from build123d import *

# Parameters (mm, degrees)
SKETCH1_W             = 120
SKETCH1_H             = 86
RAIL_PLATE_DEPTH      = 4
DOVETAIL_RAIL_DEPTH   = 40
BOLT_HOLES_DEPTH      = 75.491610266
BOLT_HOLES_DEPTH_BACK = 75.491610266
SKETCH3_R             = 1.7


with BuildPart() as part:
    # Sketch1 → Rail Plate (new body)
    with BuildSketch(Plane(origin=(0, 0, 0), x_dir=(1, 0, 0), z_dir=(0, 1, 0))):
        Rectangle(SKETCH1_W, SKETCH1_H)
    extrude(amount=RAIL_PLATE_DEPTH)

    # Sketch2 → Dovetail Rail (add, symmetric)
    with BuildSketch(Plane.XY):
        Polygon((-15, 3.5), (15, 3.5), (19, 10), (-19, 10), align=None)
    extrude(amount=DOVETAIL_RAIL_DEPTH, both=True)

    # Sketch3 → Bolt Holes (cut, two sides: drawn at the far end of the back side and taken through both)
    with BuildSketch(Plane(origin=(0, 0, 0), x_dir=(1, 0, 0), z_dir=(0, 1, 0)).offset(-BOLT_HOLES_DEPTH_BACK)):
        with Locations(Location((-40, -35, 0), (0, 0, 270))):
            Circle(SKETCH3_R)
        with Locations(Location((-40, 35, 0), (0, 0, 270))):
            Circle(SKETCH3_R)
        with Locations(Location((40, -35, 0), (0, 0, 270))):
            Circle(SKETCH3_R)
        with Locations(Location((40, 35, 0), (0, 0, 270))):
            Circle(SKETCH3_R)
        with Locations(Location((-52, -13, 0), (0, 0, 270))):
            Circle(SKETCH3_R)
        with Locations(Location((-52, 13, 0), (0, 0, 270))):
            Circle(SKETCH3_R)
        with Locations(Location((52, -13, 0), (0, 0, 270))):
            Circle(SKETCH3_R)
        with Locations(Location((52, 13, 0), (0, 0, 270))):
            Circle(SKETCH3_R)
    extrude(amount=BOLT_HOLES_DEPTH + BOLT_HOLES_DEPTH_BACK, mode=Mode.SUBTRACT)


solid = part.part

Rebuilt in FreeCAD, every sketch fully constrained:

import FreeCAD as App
import Part
import Sketcher


def add_polygon(sketch, points):
    """Adds a closed chain of lines whose ends are joined by coincident constraints."""
    first, n = sketch.GeometryCount, len(points)
    for a, b in zip(points, points[1:] + points[:1]):
        sketch.addGeometry(Part.LineSegment(App.Vector(*a, 0), App.Vector(*b, 0)), False)
    for i in range(n):
        sketch.addConstraint(Sketcher.Constraint("Coincident", first + i, 2, first + (i + 1) % n, 1))

doc = App.newDocument("Part")
body = doc.addObject("PartDesign::Body", "Body")

sketch1 = body.newObject("Sketcher::SketchObject", "Sketch")
sketch1.AttachmentSupport = (doc.getObject("XZ_Plane"), [""])
sketch1.MapMode = "FlatFace"
add_polygon(sketch1, [(-60, -43), (-60, 43), (60, 43), (60, -43)])
sketch1.addConstraint([
    Sketcher.Constraint("Vertical", 0),
    Sketcher.Constraint("Horizontal", 1),
    Sketcher.Constraint("Vertical", 2),
    Sketcher.Constraint("Horizontal", 3),
    Sketcher.Constraint("Symmetric", 0, 2, 2, 2, -1, 1),
    Sketcher.Constraint("DistanceX", 1, 1, 1, 2, 120.0),
    Sketcher.Constraint("DistanceY", 0, 1, 0, 2, 86.0),
])
pad1 = body.newObject("PartDesign::Pad", "Pad")
pad1.Profile = sketch1
pad1.Length = 4
pad1.Reversed = True

sketch2 = body.newObject("Sketcher::SketchObject", "Sketch001")
sketch2.AttachmentSupport = (doc.getObject("XY_Plane"), [""])
sketch2.MapMode = "FlatFace"
add_polygon(sketch2, [(-15, 4), (15, 4), (19, 10), (-19, 10)])
sketch2.addConstraint([
    Sketcher.Constraint("Horizontal", 0),
    Sketcher.Constraint("Horizontal", 2),
    Sketcher.Constraint("Equal", 1, 3),
    Sketcher.Constraint("DistanceX", 0, 1, 0, 2, 30.0),
    Sketcher.Constraint("DistanceX", 2, 2, 2, 1, 38.0),
    Sketcher.Constraint("DistanceX", -1, 1, 0, 2, 15.0),
    Sketcher.Constraint("DistanceY", -1, 1, 1, 2, 10.0),
    Sketcher.Constraint("DistanceY", -1, 1, 0, 2, 3.5),
])
pad2 = body.newObject("PartDesign::Pad", "Pad001")
pad2.Profile = sketch2
pad2.Length = 80
pad2.Midplane = True

sketch3 = body.newObject("Sketcher::SketchObject", "Sketch002")
sketch3.AttachmentSupport = (doc.getObject("XZ_Plane"), [""])
sketch3.MapMode = "FlatFace"
sketch3.addGeometry([
    Part.Circle(App.Vector(-40, 35, 0), App.Vector(0, 0, 1), 1.7),
    Part.Circle(App.Vector(-40, -35, 0), App.Vector(0, 0, 1), 1.7),
    Part.Circle(App.Vector(40, 35, 0), App.Vector(0, 0, 1), 1.7),
    Part.Circle(App.Vector(40, -35, 0), App.Vector(0, 0, 1), 1.7),
    Part.Circle(App.Vector(-52, 13, 0), App.Vector(0, 0, 1), 1.7),
    Part.Circle(App.Vector(-52, -13, 0), App.Vector(0, 0, 1), 1.7),
    Part.Circle(App.Vector(52, 13, 0), App.Vector(0, 0, 1), 1.7),
    Part.Circle(App.Vector(52, -13, 0), App.Vector(0, 0, 1), 1.7),
], False)
sketch3.addConstraint([
    Sketcher.Constraint("Equal", 0, 1),
    Sketcher.Constraint("Equal", 1, 2),
    Sketcher.Constraint("Equal", 2, 3),
    Sketcher.Constraint("Equal", 3, 4),
    Sketcher.Constraint("Equal", 4, 5),
    Sketcher.Constraint("Equal", 5, 6),
    Sketcher.Constraint("Equal", 6, 7),
    Sketcher.Constraint("Symmetric", 1, 3, 2, 3, -1, 1),
    Sketcher.Constraint("Symmetric", 0, 3, 3, 3, -1, 1),
    Sketcher.Constraint("Symmetric", 5, 3, 6, 3, -1, 1),
    Sketcher.Constraint("Symmetric", 4, 3, 7, 3, -1, 1),
    Sketcher.Constraint("Symmetric", 0, 3, 2, 3, -2),
    Sketcher.Constraint("Symmetric", 4, 3, 6, 3, -2),
    Sketcher.Constraint("Diameter", 0, 3.4),
    Sketcher.Constraint("DistanceX", 0, 3, -1, 1, 40.0),
    Sketcher.Constraint("DistanceY", -1, 1, 0, 3, 35.0),
    Sketcher.Constraint("DistanceX", 4, 3, -1, 1, 52.0),
    Sketcher.Constraint("DistanceY", -1, 1, 4, 3, 13.0),
])
pocket1 = body.newObject("PartDesign::Pocket", "Pocket")
pocket1.Profile = sketch3
pocket1.Type = "ThroughAll"
pocket1.Midplane = True

doc.recompute()
